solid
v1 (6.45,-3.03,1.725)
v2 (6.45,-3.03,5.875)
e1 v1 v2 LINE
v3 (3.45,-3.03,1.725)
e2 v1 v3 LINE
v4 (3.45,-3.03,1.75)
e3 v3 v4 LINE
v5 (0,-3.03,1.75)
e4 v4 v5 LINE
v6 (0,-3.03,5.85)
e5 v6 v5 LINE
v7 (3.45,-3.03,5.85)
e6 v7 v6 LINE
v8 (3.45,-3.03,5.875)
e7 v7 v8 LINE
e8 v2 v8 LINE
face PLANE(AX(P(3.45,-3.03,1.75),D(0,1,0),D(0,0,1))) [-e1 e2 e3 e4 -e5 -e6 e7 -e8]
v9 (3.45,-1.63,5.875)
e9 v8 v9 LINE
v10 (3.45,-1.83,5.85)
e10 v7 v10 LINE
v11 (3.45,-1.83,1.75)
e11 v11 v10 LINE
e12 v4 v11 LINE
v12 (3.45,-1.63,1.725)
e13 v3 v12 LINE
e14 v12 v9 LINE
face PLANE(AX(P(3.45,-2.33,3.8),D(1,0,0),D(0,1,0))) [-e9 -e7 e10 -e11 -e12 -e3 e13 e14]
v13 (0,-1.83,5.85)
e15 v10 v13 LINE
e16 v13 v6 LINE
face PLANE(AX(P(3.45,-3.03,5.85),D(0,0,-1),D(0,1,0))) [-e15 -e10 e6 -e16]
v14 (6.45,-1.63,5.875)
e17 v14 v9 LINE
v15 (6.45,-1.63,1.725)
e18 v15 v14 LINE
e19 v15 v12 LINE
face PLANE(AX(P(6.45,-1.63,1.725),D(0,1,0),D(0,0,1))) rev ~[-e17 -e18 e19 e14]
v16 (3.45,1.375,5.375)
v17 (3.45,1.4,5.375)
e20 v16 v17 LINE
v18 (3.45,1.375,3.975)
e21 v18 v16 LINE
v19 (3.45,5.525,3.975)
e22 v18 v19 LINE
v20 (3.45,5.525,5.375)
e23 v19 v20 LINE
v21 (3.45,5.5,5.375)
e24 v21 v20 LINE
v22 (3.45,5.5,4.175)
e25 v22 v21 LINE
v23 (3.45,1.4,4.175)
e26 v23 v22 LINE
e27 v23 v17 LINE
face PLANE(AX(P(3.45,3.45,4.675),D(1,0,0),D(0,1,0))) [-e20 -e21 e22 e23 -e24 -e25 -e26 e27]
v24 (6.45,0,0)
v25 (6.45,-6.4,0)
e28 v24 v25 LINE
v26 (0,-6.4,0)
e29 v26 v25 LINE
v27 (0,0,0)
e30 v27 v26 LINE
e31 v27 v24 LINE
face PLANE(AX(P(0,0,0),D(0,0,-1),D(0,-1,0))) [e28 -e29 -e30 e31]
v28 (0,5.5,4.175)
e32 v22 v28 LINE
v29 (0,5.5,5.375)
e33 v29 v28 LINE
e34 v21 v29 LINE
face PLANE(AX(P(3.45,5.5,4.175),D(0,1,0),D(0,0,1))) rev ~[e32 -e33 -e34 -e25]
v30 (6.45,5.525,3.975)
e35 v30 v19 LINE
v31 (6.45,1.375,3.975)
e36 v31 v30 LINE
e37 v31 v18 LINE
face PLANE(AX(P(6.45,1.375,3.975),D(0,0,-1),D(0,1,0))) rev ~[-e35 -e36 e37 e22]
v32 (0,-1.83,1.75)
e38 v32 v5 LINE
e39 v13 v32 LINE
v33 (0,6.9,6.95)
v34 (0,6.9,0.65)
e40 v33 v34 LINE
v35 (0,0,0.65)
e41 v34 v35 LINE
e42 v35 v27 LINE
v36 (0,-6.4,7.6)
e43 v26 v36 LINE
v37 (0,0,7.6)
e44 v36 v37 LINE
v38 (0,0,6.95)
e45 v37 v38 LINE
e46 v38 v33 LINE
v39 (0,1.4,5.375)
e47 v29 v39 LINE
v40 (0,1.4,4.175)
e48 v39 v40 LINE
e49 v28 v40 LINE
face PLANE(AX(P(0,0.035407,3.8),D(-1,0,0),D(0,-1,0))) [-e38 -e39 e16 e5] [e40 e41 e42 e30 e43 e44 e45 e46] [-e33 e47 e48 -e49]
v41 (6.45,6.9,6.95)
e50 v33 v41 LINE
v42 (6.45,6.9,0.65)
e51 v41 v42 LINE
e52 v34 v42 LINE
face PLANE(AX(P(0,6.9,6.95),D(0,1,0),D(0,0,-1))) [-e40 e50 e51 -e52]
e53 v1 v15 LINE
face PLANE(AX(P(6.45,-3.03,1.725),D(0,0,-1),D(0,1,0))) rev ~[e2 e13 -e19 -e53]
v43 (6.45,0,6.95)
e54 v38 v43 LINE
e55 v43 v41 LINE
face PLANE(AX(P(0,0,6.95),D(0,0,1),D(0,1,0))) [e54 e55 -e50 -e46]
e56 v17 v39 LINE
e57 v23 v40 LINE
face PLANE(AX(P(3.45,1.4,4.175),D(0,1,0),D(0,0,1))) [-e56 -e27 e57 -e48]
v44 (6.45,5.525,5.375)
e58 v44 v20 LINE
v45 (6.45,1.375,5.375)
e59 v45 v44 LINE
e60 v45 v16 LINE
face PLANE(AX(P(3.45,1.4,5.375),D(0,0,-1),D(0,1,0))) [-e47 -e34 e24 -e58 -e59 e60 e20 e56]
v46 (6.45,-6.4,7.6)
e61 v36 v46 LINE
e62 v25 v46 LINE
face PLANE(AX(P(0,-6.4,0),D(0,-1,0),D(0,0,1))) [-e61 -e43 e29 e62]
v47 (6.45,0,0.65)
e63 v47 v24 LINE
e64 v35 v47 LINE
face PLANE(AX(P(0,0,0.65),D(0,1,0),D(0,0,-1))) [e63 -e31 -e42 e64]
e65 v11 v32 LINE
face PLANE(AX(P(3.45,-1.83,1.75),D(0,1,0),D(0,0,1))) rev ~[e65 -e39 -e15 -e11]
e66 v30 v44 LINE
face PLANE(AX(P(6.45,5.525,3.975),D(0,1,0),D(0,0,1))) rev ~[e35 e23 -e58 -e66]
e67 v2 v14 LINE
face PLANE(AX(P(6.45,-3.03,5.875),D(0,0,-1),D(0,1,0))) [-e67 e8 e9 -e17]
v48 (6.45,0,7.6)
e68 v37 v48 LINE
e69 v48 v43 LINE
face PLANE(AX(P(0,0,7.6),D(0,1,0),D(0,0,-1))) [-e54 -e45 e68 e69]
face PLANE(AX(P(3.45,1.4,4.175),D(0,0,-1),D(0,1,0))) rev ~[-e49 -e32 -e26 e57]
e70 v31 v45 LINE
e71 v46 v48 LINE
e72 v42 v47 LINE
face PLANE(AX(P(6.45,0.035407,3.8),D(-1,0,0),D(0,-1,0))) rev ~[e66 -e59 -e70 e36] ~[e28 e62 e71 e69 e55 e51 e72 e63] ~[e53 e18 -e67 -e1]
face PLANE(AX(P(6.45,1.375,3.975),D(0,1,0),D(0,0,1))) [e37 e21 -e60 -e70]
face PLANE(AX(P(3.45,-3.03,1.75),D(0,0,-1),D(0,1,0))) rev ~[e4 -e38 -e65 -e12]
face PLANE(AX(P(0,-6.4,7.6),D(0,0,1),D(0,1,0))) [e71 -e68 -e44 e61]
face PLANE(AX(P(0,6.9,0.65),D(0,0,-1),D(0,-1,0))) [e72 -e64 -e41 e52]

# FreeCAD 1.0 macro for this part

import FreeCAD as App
import Part
import Sketcher
from FreeCAD import Vector
Q = App.Units.Quantity

doc = App.newDocument("Part")
body = doc.addObject("PartDesign::Body", "Body")

# Sketch on YZ plane
sketch1 = body.newObject("Sketcher::SketchObject", "Sketch")
sketch1.AttachmentSupport = (doc.getObject("YZ_Plane"), [""])
sketch1.MapMode = "FlatFace"
sketch1.addGeometry(Part.LineSegment(Vector(0, 7.6, 0), Vector(-6.4, 7.6, 0)), False)
sketch1.addGeometry(Part.LineSegment(Vector(-6.4, 7.6, 0), Vector(-6.4, 0, 0)), False)
sketch1.addGeometry(Part.LineSegment(Vector(-6.4, 0, 0), Vector(0, 0, 0)), False)
sketch1.addGeometry(Part.LineSegment(Vector(0, 0, 0), Vector(0, 0.7, 0)), False)
sketch1.addGeometry(Part.LineSegment(Vector(0, 0.7, 0), Vector(6.9, 0.7, 0)), False)
sketch1.addGeometry(Part.LineSegment(Vector(6.9, 0.7, 0), Vector(6.9, 7, 0)), False)
sketch1.addGeometry(Part.LineSegment(Vector(6.9, 7, 0), Vector(0, 7, 0)), False)
sketch1.addGeometry(Part.LineSegment(Vector(0, 7, 0), Vector(0, 7.6, 0)), False)
sketch1.addConstraint(Sketcher.Constraint("Coincident", 0, 2, 1, 1))
sketch1.addConstraint(Sketcher.Constraint("Coincident", 1, 2, 2, 1))
sketch1.addConstraint(Sketcher.Constraint("Coincident", 2, 2, 3, 1))
sketch1.addConstraint(Sketcher.Constraint("Coincident", 3, 2, 4, 1))
sketch1.addConstraint(Sketcher.Constraint("Coincident", 4, 2, 5, 1))
sketch1.addConstraint(Sketcher.Constraint("Coincident", 5, 2, 6, 1))
sketch1.addConstraint(Sketcher.Constraint("Coincident", 6, 2, 7, 1))
sketch1.addConstraint(Sketcher.Constraint("Coincident", 7, 2, 0, 1))
sketch1.addConstraint(Sketcher.Constraint("Horizontal", 0))
sketch1.addConstraint(Sketcher.Constraint("Vertical", 1))
sketch1.addConstraint(Sketcher.Constraint("Horizontal", 2))
sketch1.addConstraint(Sketcher.Constraint("Vertical", 3))
sketch1.addConstraint(Sketcher.Constraint("Horizontal", 4))
sketch1.addConstraint(Sketcher.Constraint("Vertical", 5))
sketch1.addConstraint(Sketcher.Constraint("Horizontal", 6))
sketch1.addConstraint(Sketcher.Constraint("Vertical", 7))
sketch1.addConstraint(Sketcher.Constraint("Coincident", 2, 2, -1, 1))
sketch1.addConstraint(Sketcher.Constraint("PointOnObject", 6, 2, -2))
sketch1.addConstraint(Sketcher.Constraint("Equal", 3, 7))
sketch1.addConstraint(Sketcher.Constraint("DistanceX", 0, 2, 0, 1, Q("6.4 mm")))
sketch1.addConstraint(Sketcher.Constraint("DistanceX", 4, 1, 4, 2, Q("6.9 mm")))
sketch1.addConstraint(Sketcher.Constraint("DistanceY", 1, 2, 1, 1, Q("7.6 mm")))
sketch1.addConstraint(Sketcher.Constraint("DistanceY", 5, 1, 5, 2, Q("6.3 mm")))
pad1 = body.newObject("PartDesign::Pad", "Pad")
pad1.Profile = sketch1
pad1.Length = 6.45

# Sketch on YZ plane
sketch2 = body.newObject("Sketcher::SketchObject", "Sketch001")
sketch2.AttachmentSupport = (doc.getObject("YZ_Plane"), [""])
sketch2.MapMode = "FlatFace"
sketch2.AttachmentOffset = App.Placement(Vector(0, 0, 6.45), App.Rotation())
sketch2.addGeometry(Part.LineSegment(Vector(-3, 5.9, 0), Vector(-3, 1.7, 0)), False)
sketch2.addGeometry(Part.LineSegment(Vector(-3, 1.7, 0), Vector(-1.6, 1.7, 0)), False)
sketch2.addGeometry(Part.LineSegment(Vector(-1.6, 1.7, 0), Vector(-1.6, 5.9, 0)), False)
sketch2.addGeometry(Part.LineSegment(Vector(-1.6, 5.9, 0), Vector(-3, 5.9, 0)), False)
sketch2.addGeometry(Part.LineSegment(Vector(1.4, 5.4, 0), Vector(1.4, 4, 0)), False)
sketch2.addGeometry(Part.LineSegment(Vector(1.4, 4, 0), Vector(5.5, 4, 0)), False)
sketch2.addGeometry(Part.LineSegment(Vector(5.5, 4, 0), Vector(5.5, 5.4, 0)), False)
sketch2.addGeometry(Part.LineSegment(Vector(5.5, 5.4, 0), Vector(1.4, 5.4, 0)), False)
sketch2.addConstraint(Sketcher.Constraint("Coincident", 0, 2, 1, 1))
sketch2.addConstraint(Sketcher.Constraint("Coincident", 1, 2, 2, 1))
sketch2.addConstraint(Sketcher.Constraint("Coincident", 2, 2, 3, 1))
sketch2.addConstraint(Sketcher.Constraint("Coincident", 3, 2, 0, 1))
sketch2.addConstraint(Sketcher.Constraint("Coincident", 4, 2, 5, 1))
sketch2.addConstraint(Sketcher.Constraint("Coincident", 5, 2, 6, 1))
sketch2.addConstraint(Sketcher.Constraint("Coincident", 6, 2, 7, 1))
sketch2.addConstraint(Sketcher.Constraint("Coincident", 7, 2, 4, 1))
sketch2.addConstraint(Sketcher.Constraint("Vertical", 0))
sketch2.addConstraint(Sketcher.Constraint("Horizontal", 1))
sketch2.addConstraint(Sketcher.Constraint("Vertical", 2))
sketch2.addConstraint(Sketcher.Constraint("Horizontal", 3))
sketch2.addConstraint(Sketcher.Constraint("Vertical", 4))
sketch2.addConstraint(Sketcher.Constraint("Horizontal", 5))
sketch2.addConstraint(Sketcher.Constraint("Vertical", 6))
sketch2.addConstraint(Sketcher.Constraint("Horizontal", 7))
sketch2.addConstraint(Sketcher.Constraint("Equal", 7, 0))
sketch2.addConstraint(Sketcher.Constraint("Equal", 3, 4))
sketch2.addConstraint(Sketcher.Constraint("DistanceX", 1, 1, 1, 2, Q("1.4 mm")))
sketch2.addConstraint(Sketcher.Constraint("DistanceX", 5, 1, 5, 2, Q("4.15 mm")))
sketch2.addConstraint(Sketcher.Constraint("DistanceY", 4, 2, 2, 2, Q("1.9 mm")))
sketch2.addConstraint(Sketcher.Constraint("DistanceX", 0, 2, -1, 1, Q("3.03 mm")))
sketch2.addConstraint(Sketcher.Constraint("DistanceY", -1, 1, 0, 2, Q("1.725 mm")))
sketch2.addConstraint(Sketcher.Constraint("DistanceX", -1, 1, 4, 2, Q("1.375 mm")))
pocket1 = body.newObject("PartDesign::Pocket", "Pocket")
pocket1.Profile = sketch2
pocket1.Length = 3

# Sketch on YZ plane
sketch3 = body.newObject("Sketcher::SketchObject", "Sketch002")
sketch3.AttachmentSupport = (doc.getObject("YZ_Plane"), [""])
sketch3.MapMode = "FlatFace"
sketch3.AttachmentOffset = App.Placement(Vector(0, 0, 3.45), App.Rotation())
sketch3.addGeometry(Part.LineSegment(Vector(-3, 5.8, 0), Vector(-3, 1.8, 0)), False)
sketch3.addGeometry(Part.LineSegment(Vector(-3, 1.8, 0), Vector(-1.8, 1.8, 0)), False)
sketch3.addGeometry(Part.LineSegment(Vector(-1.8, 1.8, 0), Vector(-1.8, 5.8, 0)), False)
sketch3.addGeometry(Part.LineSegment(Vector(-1.8, 5.8, 0), Vector(-3, 5.8, 0)), False)
sketch3.addGeometry(Part.LineSegment(Vector(1.4, 5.4, 0), Vector(1.4, 4.2, 0)), False)
sketch3.addGeometry(Part.LineSegment(Vector(1.4, 4.2, 0), Vector(5.5, 4.2, 0)), False)
sketch3.addGeometry(Part.LineSegment(Vector(5.5, 4.2, 0), Vector(5.5, 5.4, 0)), False)
sketch3.addGeometry(Part.LineSegment(Vector(5.5, 5.4, 0), Vector(1.4, 5.4, 0)), False)
sketch3.addConstraint(Sketcher.Constraint("Coincident", 0, 2, 1, 1))
sketch3.addConstraint(Sketcher.Constraint("Coincident", 1, 2, 2, 1))
sketch3.addConstraint(Sketcher.Constraint("Coincident", 2, 2, 3, 1))
sketch3.addConstraint(Sketcher.Constraint("Coincident", 3, 2, 0, 1))
sketch3.addConstraint(Sketcher.Constraint("Coincident", 4, 2, 5, 1))
sketch3.addConstraint(Sketcher.Constraint("Coincident", 5, 2, 6, 1))
sketch3.addConstraint(Sketcher.Constraint("Coincident", 6, 2, 7, 1))
sketch3.addConstraint(Sketcher.Constraint("Coincident", 7, 2, 4, 1))
sketch3.addConstraint(Sketcher.Constraint("Vertical", 0))
sketch3.addConstraint(Sketcher.Constraint("Horizontal", 1))
sketch3.addConstraint(Sketcher.Constraint("Vertical", 2))
sketch3.addConstraint(Sketcher.Constraint("Horizontal", 3))
sketch3.addConstraint(Sketcher.Constraint("Vertical", 4))
sketch3.addConstraint(Sketcher.Constraint("Horizontal", 5))
sketch3.addConstraint(Sketcher.Constraint("Vertical", 6))
sketch3.addConstraint(Sketcher.Constraint("Horizontal", 7))
sketch3.addConstraint(Sketcher.Constraint("Equal", 7, 0))
sketch3.addConstraint(Sketcher.Constraint("Equal", 3, 4))
sketch3.addConstraint(Sketcher.Constraint("DistanceX", 1, 1, 1, 2, Q("1.2 mm")))
sketch3.addConstraint(Sketcher.Constraint("DistanceX", 5, 1, 5, 2, Q("4.1 mm")))
sketch3.addConstraint(Sketcher.Constraint("DistanceX", -1, 1, 4, 2, Q("1.4 mm")))
sketch3.addConstraint(Sketcher.Constraint("DistanceX", 0, 2, -1, 1, Q("3.03 mm")))
sketch3.addConstraint(Sketcher.Constraint("DistanceY", -1, 1, 0, 2, Q("1.75 mm")))
sketch3.addConstraint(Sketcher.Constraint("DistanceY", -1, 1, 4, 2, Q("4.175 mm")))
pocket2 = body.newObject("PartDesign::Pocket", "Pocket001")
pocket2.Profile = sketch3
pocket2.Length = 3.5

doc.recompute()
